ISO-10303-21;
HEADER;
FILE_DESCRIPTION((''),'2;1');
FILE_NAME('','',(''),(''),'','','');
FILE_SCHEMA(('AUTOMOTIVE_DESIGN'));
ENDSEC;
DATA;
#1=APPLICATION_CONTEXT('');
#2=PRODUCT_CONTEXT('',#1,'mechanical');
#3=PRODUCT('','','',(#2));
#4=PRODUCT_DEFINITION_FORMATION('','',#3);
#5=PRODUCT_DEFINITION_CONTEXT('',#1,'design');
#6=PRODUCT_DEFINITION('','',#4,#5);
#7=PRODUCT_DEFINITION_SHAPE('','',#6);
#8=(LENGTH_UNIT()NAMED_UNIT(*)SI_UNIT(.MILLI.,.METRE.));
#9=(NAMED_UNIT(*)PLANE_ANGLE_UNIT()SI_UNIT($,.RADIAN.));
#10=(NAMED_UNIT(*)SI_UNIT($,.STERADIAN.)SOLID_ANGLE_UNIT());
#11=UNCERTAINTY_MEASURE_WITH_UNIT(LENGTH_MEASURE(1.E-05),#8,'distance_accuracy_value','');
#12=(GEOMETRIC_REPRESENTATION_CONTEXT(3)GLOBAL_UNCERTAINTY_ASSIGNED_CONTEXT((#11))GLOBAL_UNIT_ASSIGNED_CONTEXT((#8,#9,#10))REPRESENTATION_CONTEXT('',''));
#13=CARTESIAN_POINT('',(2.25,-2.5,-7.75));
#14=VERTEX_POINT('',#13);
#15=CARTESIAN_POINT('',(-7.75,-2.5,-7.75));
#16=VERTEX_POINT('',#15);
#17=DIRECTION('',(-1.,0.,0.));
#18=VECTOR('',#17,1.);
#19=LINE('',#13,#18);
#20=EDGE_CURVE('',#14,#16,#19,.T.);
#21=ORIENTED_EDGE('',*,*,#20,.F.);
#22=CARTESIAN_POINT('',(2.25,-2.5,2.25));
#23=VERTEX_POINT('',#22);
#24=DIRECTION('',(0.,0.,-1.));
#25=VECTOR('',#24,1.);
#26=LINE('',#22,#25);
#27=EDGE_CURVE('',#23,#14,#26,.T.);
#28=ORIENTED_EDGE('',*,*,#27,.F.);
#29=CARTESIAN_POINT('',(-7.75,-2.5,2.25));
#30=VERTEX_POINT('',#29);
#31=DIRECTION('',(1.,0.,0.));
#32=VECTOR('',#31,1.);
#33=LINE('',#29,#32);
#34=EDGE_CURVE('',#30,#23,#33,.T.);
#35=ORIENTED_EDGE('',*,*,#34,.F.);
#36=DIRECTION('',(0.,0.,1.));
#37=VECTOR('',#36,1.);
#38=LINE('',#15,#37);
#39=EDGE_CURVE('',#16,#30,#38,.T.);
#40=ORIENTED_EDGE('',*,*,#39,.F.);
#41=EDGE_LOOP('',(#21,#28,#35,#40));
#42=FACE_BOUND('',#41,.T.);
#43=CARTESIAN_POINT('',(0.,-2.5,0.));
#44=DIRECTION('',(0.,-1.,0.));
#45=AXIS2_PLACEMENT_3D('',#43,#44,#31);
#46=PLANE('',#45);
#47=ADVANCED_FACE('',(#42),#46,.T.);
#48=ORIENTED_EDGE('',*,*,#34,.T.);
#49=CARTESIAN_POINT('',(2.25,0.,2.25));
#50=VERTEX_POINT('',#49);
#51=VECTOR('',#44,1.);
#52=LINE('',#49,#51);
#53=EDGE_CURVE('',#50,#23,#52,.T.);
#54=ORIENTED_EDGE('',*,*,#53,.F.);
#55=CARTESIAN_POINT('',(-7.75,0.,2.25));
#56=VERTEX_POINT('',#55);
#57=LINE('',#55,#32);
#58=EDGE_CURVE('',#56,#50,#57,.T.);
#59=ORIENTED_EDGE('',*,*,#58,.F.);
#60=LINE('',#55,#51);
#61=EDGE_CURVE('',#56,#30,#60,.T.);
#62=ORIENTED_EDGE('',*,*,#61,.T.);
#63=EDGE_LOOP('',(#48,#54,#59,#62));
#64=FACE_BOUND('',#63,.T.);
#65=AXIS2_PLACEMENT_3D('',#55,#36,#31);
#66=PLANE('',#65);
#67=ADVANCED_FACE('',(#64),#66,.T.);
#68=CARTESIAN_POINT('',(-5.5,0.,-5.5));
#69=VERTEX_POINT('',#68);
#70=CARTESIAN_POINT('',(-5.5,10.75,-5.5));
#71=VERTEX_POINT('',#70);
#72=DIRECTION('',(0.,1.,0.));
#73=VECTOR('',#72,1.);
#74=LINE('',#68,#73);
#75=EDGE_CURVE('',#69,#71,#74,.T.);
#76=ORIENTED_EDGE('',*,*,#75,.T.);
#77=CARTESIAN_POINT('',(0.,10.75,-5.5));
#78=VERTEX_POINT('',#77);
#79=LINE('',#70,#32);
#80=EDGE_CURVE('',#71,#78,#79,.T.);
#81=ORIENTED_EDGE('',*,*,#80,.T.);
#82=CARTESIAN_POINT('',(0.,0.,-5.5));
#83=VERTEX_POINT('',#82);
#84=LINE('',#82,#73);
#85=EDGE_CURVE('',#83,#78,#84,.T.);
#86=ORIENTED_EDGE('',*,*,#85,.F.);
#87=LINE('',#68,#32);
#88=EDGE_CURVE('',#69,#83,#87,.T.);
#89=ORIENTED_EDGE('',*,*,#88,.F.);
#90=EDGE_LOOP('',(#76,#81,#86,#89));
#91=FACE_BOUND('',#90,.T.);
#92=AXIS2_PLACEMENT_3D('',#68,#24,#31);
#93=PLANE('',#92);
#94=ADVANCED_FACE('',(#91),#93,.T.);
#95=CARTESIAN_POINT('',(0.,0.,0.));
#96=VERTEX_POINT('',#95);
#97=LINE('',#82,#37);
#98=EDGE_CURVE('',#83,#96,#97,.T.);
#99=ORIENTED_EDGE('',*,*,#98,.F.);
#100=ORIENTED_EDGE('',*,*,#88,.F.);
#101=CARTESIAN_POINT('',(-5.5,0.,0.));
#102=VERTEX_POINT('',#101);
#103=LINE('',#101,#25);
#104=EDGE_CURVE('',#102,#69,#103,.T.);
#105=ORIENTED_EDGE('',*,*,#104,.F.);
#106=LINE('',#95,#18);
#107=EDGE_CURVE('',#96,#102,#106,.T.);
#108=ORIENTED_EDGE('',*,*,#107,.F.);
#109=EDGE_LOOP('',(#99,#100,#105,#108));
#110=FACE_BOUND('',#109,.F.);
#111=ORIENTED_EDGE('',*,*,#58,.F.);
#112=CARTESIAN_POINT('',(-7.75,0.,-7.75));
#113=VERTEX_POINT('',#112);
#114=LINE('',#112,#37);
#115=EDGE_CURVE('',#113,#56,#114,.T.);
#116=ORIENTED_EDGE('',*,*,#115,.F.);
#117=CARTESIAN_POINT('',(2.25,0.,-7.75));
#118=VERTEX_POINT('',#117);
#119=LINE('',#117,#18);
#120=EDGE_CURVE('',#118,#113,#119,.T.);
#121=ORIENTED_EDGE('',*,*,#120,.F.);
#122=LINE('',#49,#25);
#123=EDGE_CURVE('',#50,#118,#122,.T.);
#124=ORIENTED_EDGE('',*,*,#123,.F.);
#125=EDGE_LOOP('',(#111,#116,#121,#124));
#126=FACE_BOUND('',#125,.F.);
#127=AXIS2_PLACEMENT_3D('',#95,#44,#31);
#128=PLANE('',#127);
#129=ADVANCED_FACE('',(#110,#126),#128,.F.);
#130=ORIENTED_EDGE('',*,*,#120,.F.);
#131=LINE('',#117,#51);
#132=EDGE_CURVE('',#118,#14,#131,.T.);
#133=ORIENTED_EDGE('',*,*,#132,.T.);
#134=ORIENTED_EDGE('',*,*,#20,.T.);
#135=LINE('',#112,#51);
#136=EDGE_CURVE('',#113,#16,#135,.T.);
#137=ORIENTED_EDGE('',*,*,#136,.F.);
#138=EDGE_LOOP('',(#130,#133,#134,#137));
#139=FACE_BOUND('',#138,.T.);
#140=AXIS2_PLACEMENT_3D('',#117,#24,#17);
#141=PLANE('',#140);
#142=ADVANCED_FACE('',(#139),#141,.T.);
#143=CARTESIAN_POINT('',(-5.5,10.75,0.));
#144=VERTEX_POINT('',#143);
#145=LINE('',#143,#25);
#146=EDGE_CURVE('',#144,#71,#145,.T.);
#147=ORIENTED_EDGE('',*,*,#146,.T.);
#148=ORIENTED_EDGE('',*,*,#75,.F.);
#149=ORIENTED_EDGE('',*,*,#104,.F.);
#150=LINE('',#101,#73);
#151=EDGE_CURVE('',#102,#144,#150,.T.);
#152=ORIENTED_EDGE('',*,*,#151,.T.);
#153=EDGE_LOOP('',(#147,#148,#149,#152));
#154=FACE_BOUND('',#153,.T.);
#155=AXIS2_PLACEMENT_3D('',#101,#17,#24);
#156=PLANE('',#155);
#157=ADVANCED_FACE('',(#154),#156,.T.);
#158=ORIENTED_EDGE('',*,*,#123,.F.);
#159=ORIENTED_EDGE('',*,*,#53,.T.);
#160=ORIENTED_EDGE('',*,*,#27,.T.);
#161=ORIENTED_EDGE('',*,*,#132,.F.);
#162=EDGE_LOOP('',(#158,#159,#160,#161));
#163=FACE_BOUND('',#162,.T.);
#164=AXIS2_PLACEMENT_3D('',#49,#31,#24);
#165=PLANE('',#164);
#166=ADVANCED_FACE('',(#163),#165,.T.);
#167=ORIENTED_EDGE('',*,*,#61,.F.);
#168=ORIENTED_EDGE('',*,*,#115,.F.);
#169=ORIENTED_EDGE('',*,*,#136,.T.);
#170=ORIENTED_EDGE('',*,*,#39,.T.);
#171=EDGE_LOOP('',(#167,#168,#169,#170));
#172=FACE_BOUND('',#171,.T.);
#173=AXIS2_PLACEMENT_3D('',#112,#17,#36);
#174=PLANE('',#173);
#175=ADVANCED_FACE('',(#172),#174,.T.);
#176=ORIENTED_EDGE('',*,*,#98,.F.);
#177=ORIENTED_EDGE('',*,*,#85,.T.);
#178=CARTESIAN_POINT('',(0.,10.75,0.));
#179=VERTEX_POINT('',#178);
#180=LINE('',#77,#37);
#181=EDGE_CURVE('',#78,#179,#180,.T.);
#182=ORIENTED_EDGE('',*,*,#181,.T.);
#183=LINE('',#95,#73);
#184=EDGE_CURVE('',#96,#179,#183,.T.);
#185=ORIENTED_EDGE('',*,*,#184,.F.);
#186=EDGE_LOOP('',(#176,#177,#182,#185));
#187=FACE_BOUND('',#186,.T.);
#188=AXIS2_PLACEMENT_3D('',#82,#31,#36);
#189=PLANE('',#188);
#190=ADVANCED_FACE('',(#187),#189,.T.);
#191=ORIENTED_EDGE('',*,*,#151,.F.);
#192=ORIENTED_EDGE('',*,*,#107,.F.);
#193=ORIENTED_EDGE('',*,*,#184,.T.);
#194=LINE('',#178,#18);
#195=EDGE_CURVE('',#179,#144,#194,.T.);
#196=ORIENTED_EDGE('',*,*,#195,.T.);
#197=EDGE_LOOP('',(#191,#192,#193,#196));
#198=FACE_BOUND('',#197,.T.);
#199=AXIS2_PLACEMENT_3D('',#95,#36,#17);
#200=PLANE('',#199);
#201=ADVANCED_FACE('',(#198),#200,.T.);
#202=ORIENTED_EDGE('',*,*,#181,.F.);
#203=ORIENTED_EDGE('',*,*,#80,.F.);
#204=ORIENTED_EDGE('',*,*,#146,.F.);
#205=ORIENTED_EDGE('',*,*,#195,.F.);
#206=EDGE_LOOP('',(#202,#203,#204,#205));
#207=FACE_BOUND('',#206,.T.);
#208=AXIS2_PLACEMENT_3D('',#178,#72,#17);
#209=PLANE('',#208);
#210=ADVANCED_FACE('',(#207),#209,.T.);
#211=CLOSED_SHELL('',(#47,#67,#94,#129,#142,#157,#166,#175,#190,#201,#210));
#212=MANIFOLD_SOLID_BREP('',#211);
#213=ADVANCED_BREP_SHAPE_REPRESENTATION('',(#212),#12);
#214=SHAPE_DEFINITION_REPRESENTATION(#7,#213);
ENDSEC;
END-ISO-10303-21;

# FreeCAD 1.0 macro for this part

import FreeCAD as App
import Part
import Sketcher
from FreeCAD import Vector
Q = App.Units.Quantity

doc = App.newDocument("Part")
params = doc.addObject("Spreadsheet::Sheet", "Params")
for row, (alias, value) in enumerate([
    ("sketch1_width", "5.5 mm"),
    ("pad1_length", "10.75 mm"),
    ("sketch2_width", "10 mm"),
    ("pad2_length", "2.5 mm"),
], start=1):
    params.set(f"A{row}", alias)
    params.set(f"B{row}", "=" + value)
    params.setAlias(f"B{row}", alias)

body = doc.addObject("PartDesign::Body", "Body")

sketch1 = body.newObject("Sketcher::SketchObject", "Sketch")
sketch1.AttachmentSupport = (doc.getObject("XZ_Plane"), [""])
sketch1.MapMode = "FlatFace"
sketch1.addGeometry(Part.LineSegment(Vector(-6, 0, 0), Vector(0, 0, 0)), False)
sketch1.addGeometry(Part.LineSegment(Vector(0, 0, 0), Vector(0, -6, 0)), False)
sketch1.addGeometry(Part.LineSegment(Vector(0, -6, 0), Vector(-6, -6, 0)), False)
sketch1.addGeometry(Part.LineSegment(Vector(-6, -6, 0), Vector(-6, 0, 0)), False)
sketch1.addConstraint(Sketcher.Constraint("Coincident", 0, 2, 1, 1))
sketch1.addConstraint(Sketcher.Constraint("Coincident", 1, 2, 2, 1))
sketch1.addConstraint(Sketcher.Constraint("Coincident", 2, 2, 3, 1))
sketch1.addConstraint(Sketcher.Constraint("Coincident", 3, 2, 0, 1))
sketch1.addConstraint(Sketcher.Constraint("Horizontal", 0))
sketch1.addConstraint(Sketcher.Constraint("Vertical", 1))
sketch1.addConstraint(Sketcher.Constraint("Horizontal", 2))
sketch1.addConstraint(Sketcher.Constraint("Vertical", 3))
sketch1.addConstraint(Sketcher.Constraint("Coincident", 0, 2, -1, 1))
sketch1.addConstraint(Sketcher.Constraint("Equal", 2, 1))
sketch1.addConstraint(Sketcher.Constraint("DistanceX", 0, 1, 0, 2, Q("5.5 mm")))
sketch1.setExpression("Constraints[10]", "Params.sketch1_width")
pad1 = body.newObject("PartDesign::Pad", "Pad")
pad1.Profile = sketch1
pad1.setExpression("Length", "Params.pad1_length")
pad1.Reversed = True

sketch2 = body.newObject("Sketcher::SketchObject", "Sketch001")
sketch2.AttachmentSupport = (doc.getObject("XZ_Plane"), [""])
sketch2.MapMode = "FlatFace"
sketch2.addGeometry(Part.LineSegment(Vector(2, 2, 0), Vector(-8, 2, 0)), False)
sketch2.addGeometry(Part.LineSegment(Vector(-8, 2, 0), Vector(-8, -8, 0)), False)
sketch2.addGeometry(Part.LineSegment(Vector(-8, -8, 0), Vector(2, -8, 0)), False)
sketch2.addGeometry(Part.LineSegment(Vector(2, -8, 0), Vector(2, 2, 0)), False)
sketch2.addConstraint(Sketcher.Constraint("Coincident", 0, 2, 1, 1))
sketch2.addConstraint(Sketcher.Constraint("Coincident", 1, 2, 2, 1))
sketch2.addConstraint(Sketcher.Constraint("Coincident", 2, 2, 3, 1))
sketch2.addConstraint(Sketcher.Constraint("Coincident", 3, 2, 0, 1))
sketch2.addConstraint(Sketcher.Constraint("Horizontal", 0))
sketch2.addConstraint(Sketcher.Constraint("Vertical", 1))
sketch2.addConstraint(Sketcher.Constraint("Horizontal", 2))
sketch2.addConstraint(Sketcher.Constraint("Vertical", 3))
sketch2.addConstraint(Sketcher.Constraint("Equal", 2, 1))
sketch2.addConstraint(Sketcher.Constraint("DistanceX", 0, 2, 0, 1, Q("10 mm")))
sketch2.addConstraint(Sketcher.Constraint("DistanceY", -1, 1, 0, 2, Q("2.25 mm")))
sketch2.addConstraint(Sketcher.Constraint("DistanceX", -1, 1, 2, 2, Q("2.25 mm")))
sketch2.setExpression("Constraints[9]", "Params.sketch2_width")
pad2 = body.newObject("PartDesign::Pad", "Pad001")
pad2.Profile = sketch2
pad2.setExpression("Length", "Params.pad2_length")

doc.recompute()
